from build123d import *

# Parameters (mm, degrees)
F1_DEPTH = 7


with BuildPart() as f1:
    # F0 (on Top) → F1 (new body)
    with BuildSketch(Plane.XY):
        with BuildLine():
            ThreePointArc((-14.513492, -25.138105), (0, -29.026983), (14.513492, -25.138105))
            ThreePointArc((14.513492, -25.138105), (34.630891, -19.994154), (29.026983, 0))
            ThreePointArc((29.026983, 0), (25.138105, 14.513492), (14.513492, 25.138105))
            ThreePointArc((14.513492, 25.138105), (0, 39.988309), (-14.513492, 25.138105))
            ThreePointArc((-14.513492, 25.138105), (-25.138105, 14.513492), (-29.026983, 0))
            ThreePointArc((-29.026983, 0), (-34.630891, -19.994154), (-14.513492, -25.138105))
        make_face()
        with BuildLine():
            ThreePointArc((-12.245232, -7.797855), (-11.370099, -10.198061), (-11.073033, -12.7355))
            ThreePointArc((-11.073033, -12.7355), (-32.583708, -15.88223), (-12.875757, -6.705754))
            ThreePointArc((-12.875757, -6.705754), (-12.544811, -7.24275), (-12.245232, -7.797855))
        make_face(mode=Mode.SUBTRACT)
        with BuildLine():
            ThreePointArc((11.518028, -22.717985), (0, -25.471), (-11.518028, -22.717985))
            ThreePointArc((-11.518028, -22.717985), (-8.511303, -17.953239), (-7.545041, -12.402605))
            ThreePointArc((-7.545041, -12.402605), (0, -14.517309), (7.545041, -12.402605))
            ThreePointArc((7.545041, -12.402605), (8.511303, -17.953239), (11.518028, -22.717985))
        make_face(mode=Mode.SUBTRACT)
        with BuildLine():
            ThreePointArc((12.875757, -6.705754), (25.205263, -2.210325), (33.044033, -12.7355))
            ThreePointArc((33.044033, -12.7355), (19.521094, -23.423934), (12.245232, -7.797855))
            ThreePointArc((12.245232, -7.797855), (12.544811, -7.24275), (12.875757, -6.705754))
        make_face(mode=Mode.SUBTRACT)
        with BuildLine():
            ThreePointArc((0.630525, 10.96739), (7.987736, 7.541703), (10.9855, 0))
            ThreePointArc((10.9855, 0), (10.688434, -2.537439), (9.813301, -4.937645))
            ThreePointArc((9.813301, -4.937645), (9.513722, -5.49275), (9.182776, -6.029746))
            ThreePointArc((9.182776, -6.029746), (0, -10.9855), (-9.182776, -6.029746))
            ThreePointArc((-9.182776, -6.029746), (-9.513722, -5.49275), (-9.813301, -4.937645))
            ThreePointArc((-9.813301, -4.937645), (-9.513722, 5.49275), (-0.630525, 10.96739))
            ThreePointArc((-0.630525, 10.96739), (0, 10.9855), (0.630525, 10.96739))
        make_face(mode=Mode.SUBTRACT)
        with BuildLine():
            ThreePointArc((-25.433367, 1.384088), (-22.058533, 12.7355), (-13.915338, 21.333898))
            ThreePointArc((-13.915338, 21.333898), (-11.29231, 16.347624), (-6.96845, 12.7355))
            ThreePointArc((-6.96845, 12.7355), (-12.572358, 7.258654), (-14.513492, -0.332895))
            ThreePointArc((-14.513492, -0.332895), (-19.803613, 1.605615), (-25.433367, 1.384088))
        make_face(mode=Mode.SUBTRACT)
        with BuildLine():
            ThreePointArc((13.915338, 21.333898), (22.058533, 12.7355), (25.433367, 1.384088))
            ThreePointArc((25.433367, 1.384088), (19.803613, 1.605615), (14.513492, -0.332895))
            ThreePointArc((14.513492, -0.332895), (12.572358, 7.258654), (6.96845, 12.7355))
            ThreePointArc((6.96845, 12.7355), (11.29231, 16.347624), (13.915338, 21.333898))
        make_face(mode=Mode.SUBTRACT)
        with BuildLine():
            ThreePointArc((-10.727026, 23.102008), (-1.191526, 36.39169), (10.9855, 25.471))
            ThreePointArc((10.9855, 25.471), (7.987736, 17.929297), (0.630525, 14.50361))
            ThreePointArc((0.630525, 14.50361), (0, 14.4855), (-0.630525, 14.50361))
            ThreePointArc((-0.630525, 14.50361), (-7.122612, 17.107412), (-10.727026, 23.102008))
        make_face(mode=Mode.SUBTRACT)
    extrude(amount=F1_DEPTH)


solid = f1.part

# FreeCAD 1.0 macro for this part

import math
import FreeCAD as App
import Part
import Sketcher
Q = App.Units.Quantity

doc = App.newDocument("Part")
body = doc.addObject("PartDesign::Body", "Body")

sketch1 = body.newObject("Sketcher::SketchObject", "Sketch")
sketch1.AttachmentSupport = (doc.getObject("XY_Plane"), [""])
sketch1.MapMode = "FlatFace"
sketch1.addGeometry(Part.ArcOfCircle(Part.Circle(App.Vector(0, 0.000004, 0), App.Vector(0, 0, 1), 29.026987), math.radians(-119.999997), math.radians(-60.000003)), False)
sketch1.addGeometry(Part.ArcOfCircle(Part.Circle(App.Vector(22.058533, -12.7355, 0), App.Vector(0, 0, 1), 14.517309), math.radians(-121.313956), math.radians(61.313959)), False)
sketch1.addGeometry(Part.ArcOfCircle(Part.Circle(App.Vector(0.000001, 0.000001, 0), App.Vector(0, 0, 1), 29.026982), math.radians(-0.000003), math.radians(60.000001)), False)
sketch1.addGeometry(Part.ArcOfCircle(Part.Circle(App.Vector(0, 25.471, 0), App.Vector(0, 0, 1), 14.517309), math.radians(-1.313958), math.radians(181.313958)), False)
sketch1.addGeometry(Part.ArcOfCircle(Part.Circle(App.Vector(-0.000001, 0.000001, 0), App.Vector(0, 0, 1), 29.026982), math.radians(119.999999), math.radians(180.000003)), False)
sketch1.addGeometry(Part.ArcOfCircle(Part.Circle(App.Vector(-22.058533, -12.7355, 0), App.Vector(0, 0, 1), 14.517309), math.radians(118.686041), math.radians(301.313956)), False)
sketch1.addGeometry(Part.ArcOfCircle(Part.Circle(App.Vector(-22.058638, -12.735562, 0), App.Vector(0, 0, 1), 10.985622), math.radians(26.709682), math.radians(33.290334)), False)
sketch1.addGeometry(Part.ArcOfCircle(Part.Circle(App.Vector(-22.058524, -12.735497, 0), App.Vector(0, 0, 1), 10.985491), math.radians(-0.000014), math.radians(26.709649)), False)
sketch1.addGeometry(Part.ArcOfCircle(Part.Circle(App.Vector(-22.058533, -12.7355, 0), App.Vector(0, 0, 1), 10.9855), math.radians(33.290363), math.radians(360)), False)
sketch1.addGeometry(Part.ArcOfCircle(Part.Circle(App.Vector(22.058541, -12.735496, 0), App.Vector(0, 0, 1), 14.517317), math.radians(178.686057), math.radians(223.442501)), False)
sketch1.addGeometry(Part.ArcOfCircle(Part.Circle(App.Vector(0, -0.000005, 0), App.Vector(0, 0, 1), 25.470995), math.radians(-116.885033), math.radians(-63.114967)), False)
sketch1.addGeometry(Part.ArcOfCircle(Part.Circle(App.Vector(-22.058541, -12.735496, 0), App.Vector(0, 0, 1), 14.517317), math.radians(-43.442501), math.radians(1.313943)), False)
sketch1.addGeometry(Part.ArcOfCircle(Part.Circle(App.Vector(0, -0.000001, 0), App.Vector(0, 0, 1), 14.517308), math.radians(-121.313961), math.radians(-58.686039)), False)
sketch1.addGeometry(Part.ArcOfCircle(Part.Circle(App.Vector(22.058638, -12.735562, 0), App.Vector(0, 0, 1), 10.985622), math.radians(146.709666), math.radians(153.290318)), False)
sketch1.addGeometry(Part.ArcOfCircle(Part.Circle(App.Vector(22.058533, -12.7355, 0), App.Vector(0, 0, 1), 10.9855), math.radians(-0.000002), math.radians(146.709638)), False)
sketch1.addGeometry(Part.ArcOfCircle(Part.Circle(App.Vector(22.058533, -12.7355, 0), App.Vector(0, 0, 1), 10.9855), math.radians(153.290359), math.radians(360.000001)), False)
sketch1.addGeometry(Part.ArcOfCircle(Part.Circle(App.Vector(0, 0.00014, 0), App.Vector(0, 0, 1), 10.98536), math.radians(86.709595), math.radians(93.290405)), False)
sketch1.addGeometry(Part.ArcOfCircle(Part.Circle(App.Vector(0, 0, 0), App.Vector(0, 0, 1), 10.9855), math.radians(-0.000001), math.radians(86.709639)), False)
sketch1.addGeometry(Part.ArcOfCircle(Part.Circle(App.Vector(0.000009, -0.000003, 0), App.Vector(0, 0, 1), 10.985491), math.radians(-26.709649), math.radians(0.000014)), False)
sketch1.addGeometry(Part.ArcOfCircle(Part.Circle(App.Vector(-0.000105, 0.000062, 0), App.Vector(0, 0, 1), 10.985622), math.radians(-33.290334), math.radians(-26.709682)), False)
sketch1.addGeometry(Part.ArcOfCircle(Part.Circle(App.Vector(0, 0, 0), App.Vector(0, 0, 1), 10.9855), math.radians(-146.709635), math.radians(-33.290365)), False)
sketch1.addGeometry(Part.ArcOfCircle(Part.Circle(App.Vector(0.000105, 0.000062, 0), App.Vector(0, 0, 1), 10.985622), math.radians(-153.290318), math.radians(-146.709666)), False)
sketch1.addGeometry(Part.ArcOfCircle(Part.Circle(App.Vector(0, 0, 0), App.Vector(0, 0, 1), 10.9855), math.radians(93.290363), math.radians(206.709638)), False)
sketch1.addGeometry(Part.ArcOfCircle(Part.Circle(App.Vector(-22.058535, -12.735508, 0), App.Vector(0, 0, 1), 14.517317), math.radians(58.686052), math.radians(103.4425)), False)
sketch1.addGeometry(Part.ArcOfCircle(Part.Circle(App.Vector(0.000001, -0.000001, 0), App.Vector(0, 0, 1), 25.471001), math.radians(123.114972), math.radians(176.885025)), False)
sketch1.addGeometry(Part.ArcOfCircle(Part.Circle(App.Vector(-0.000001, 25.470998, 0), App.Vector(0, 0, 1), 14.517307), math.radians(-163.442519), math.radians(-118.686038)), False)
sketch1.addGeometry(Part.ArcOfCircle(Part.Circle(App.Vector(0.000004, -0.000003, 0), App.Vector(0, 0, 1), 14.517313), math.radians(118.686047), math.radians(181.313948)), False)
sketch1.addGeometry(Part.ArcOfCircle(Part.Circle(App.Vector(0.000001, 25.470998, 0), App.Vector(0, 0, 1), 14.517307), math.radians(-61.313962), math.radians(-16.557481)), False)
sketch1.addGeometry(Part.ArcOfCircle(Part.Circle(App.Vector(-0.000001, -0.000001, 0), App.Vector(0, 0, 1), 25.471001), math.radians(3.114975), math.radians(56.885028)), False)
sketch1.addGeometry(Part.ArcOfCircle(Part.Circle(App.Vector(22.058535, -12.735508, 0), App.Vector(0, 0, 1), 14.517317), math.radians(76.5575), math.radians(121.313948)), False)
sketch1.addGeometry(Part.ArcOfCircle(Part.Circle(App.Vector(-0.000004, -0.000003, 0), App.Vector(0, 0, 1), 14.517313), math.radians(-1.313948), math.radians(61.313953)), False)
sketch1.addGeometry(Part.ArcOfCircle(Part.Circle(App.Vector(0, 25.471, 0), App.Vector(0, 0, 1), 10.9855), math.radians(-167.5465), math.radians(-93.290364)), False)
sketch1.addGeometry(Part.ArcOfCircle(Part.Circle(App.Vector(0, 25.471, 0), App.Vector(0, 0, 1), 10.9855), math.radians(0.000001), math.radians(192.453497)), False)
sketch1.addGeometry(Part.ArcOfCircle(Part.Circle(App.Vector(0, 25.471, 0), App.Vector(0, 0, 1), 10.9855), math.radians(-86.709639), math.radians(0.000001)), False)
sketch1.addGeometry(Part.ArcOfCircle(Part.Circle(App.Vector(0, 25.47086, 0), App.Vector(0, 0, 1), 10.98536), math.radians(-93.290405), math.radians(-86.709595)), False)
sketch1.addConstraint(Sketcher.Constraint("Coincident", 0, 2, 1, 1))
sketch1.addConstraint(Sketcher.Constraint("Coincident", 1, 2, 2, 1))
sketch1.addConstraint(Sketcher.Constraint("Coincident", 2, 2, 3, 1))
sketch1.addConstraint(Sketcher.Constraint("Coincident", 3, 2, 4, 1))
sketch1.addConstraint(Sketcher.Constraint("Coincident", 4, 2, 5, 1))
sketch1.addConstraint(Sketcher.Constraint("Coincident", 5, 2, 0, 1))
sketch1.addConstraint(Sketcher.Constraint("Coincident", 6, 1, 7, 2))
sketch1.addConstraint(Sketcher.Constraint("Coincident", 7, 1, 8, 2))
sketch1.addConstraint(Sketcher.Constraint("Coincident", 8, 1, 6, 2))
sketch1.addConstraint(Sketcher.Constraint("Coincident", 9, 2, 10, 2))
sketch1.addConstraint(Sketcher.Constraint("Coincident", 10, 1, 11, 1))
sketch1.addConstraint(Sketcher.Constraint("Coincident", 11, 2, 12, 1))
sketch1.addConstraint(Sketcher.Constraint("Coincident", 12, 2, 9, 1))
sketch1.addConstraint(Sketcher.Constraint("Coincident", 13, 1, 14, 2))
sketch1.addConstraint(Sketcher.Constraint("Coincident", 14, 1, 15, 2))
sketch1.addConstraint(Sketcher.Constraint("Coincident", 15, 1, 13, 2))
sketch1.addConstraint(Sketcher.Constraint("Coincident", 16, 1, 17, 2))
sketch1.addConstraint(Sketcher.Constraint("Coincident", 17, 1, 18, 2))
sketch1.addConstraint(Sketcher.Constraint("Coincident", 18, 1, 19, 2))
sketch1.addConstraint(Sketcher.Constraint("Coincident", 19, 1, 20, 2))
sketch1.addConstraint(Sketcher.Constraint("Coincident", 20, 1, 21, 2))
sketch1.addConstraint(Sketcher.Constraint("Coincident", 21, 1, 22, 2))
sketch1.addConstraint(Sketcher.Constraint("Coincident", 22, 1, 16, 2))
sketch1.addConstraint(Sketcher.Constraint("Coincident", 23, 2, 24, 2))
sketch1.addConstraint(Sketcher.Constraint("Coincident", 24, 1, 25, 1))
sketch1.addConstraint(Sketcher.Constraint("Coincident", 25, 2, 26, 1))
sketch1.addConstraint(Sketcher.Constraint("Coincident", 26, 2, 23, 1))
sketch1.addConstraint(Sketcher.Constraint("Coincident", 27, 2, 28, 2))
sketch1.addConstraint(Sketcher.Constraint("Coincident", 28, 1, 29, 1))
sketch1.addConstraint(Sketcher.Constraint("Coincident", 29, 2, 30, 1))
sketch1.addConstraint(Sketcher.Constraint("Coincident", 30, 2, 27, 1))
sketch1.addConstraint(Sketcher.Constraint("Coincident", 31, 1, 32, 2))
sketch1.addConstraint(Sketcher.Constraint("Coincident", 32, 1, 33, 2))
sketch1.addConstraint(Sketcher.Constraint("Coincident", 33, 1, 34, 2))
sketch1.addConstraint(Sketcher.Constraint("Coincident", 34, 1, 31, 2))
sketch1.addConstraint(Sketcher.Constraint("Coincident", 0, 3, -1, 1))
sketch1.addConstraint(Sketcher.Constraint("Coincident", 2, 3, -1, 1))
sketch1.addConstraint(Sketcher.Constraint("Coincident", 4, 3, -1, 1))
sketch1.addConstraint(Sketcher.Constraint("Coincident", 10, 3, -1, 1))
sketch1.addConstraint(Sketcher.Constraint("Coincident", 12, 3, -1, 1))
sketch1.addConstraint(Sketcher.Constraint("Coincident", 17, 3, -1, 1))
sketch1.addConstraint(Sketcher.Constraint("Coincident", 18, 3, -1, 1))
sketch1.addConstraint(Sketcher.Constraint("Coincident", 20, 3, -1, 1))
sketch1.addConstraint(Sketcher.Constraint("Coincident", 22, 3, -1, 1))
sketch1.addConstraint(Sketcher.Constraint("Coincident", 24, 3, -1, 1))
sketch1.addConstraint(Sketcher.Constraint("Coincident", 26, 3, -1, 1))
sketch1.addConstraint(Sketcher.Constraint("Coincident", 28, 3, -1, 1))
sketch1.addConstraint(Sketcher.Constraint("Coincident", 30, 3, -1, 1))
sketch1.addConstraint(Sketcher.Constraint("Coincident", 7, 3, 5, 3))
sketch1.addConstraint(Sketcher.Constraint("Coincident", 8, 3, 5, 3))
sketch1.addConstraint(Sketcher.Constraint("Coincident", 9, 3, 1, 3))
sketch1.addConstraint(Sketcher.Constraint("Coincident", 11, 3, 5, 3))
sketch1.addConstraint(Sketcher.Constraint("Coincident", 14, 3, 1, 3))
sketch1.addConstraint(Sketcher.Constraint("Coincident", 15, 3, 1, 3))
sketch1.addConstraint(Sketcher.Constraint("Coincident", 23, 3, 5, 3))
sketch1.addConstraint(Sketcher.Constraint("Coincident", 25, 3, 3, 3))
sketch1.addConstraint(Sketcher.Constraint("Coincident", 27, 3, 3, 3))
sketch1.addConstraint(Sketcher.Constraint("Coincident", 29, 3, 1, 3))
sketch1.addConstraint(Sketcher.Constraint("Coincident", 31, 3, 3, 3))
sketch1.addConstraint(Sketcher.Constraint("Coincident", 32, 3, 3, 3))
sketch1.addConstraint(Sketcher.Constraint("Coincident", 33, 3, 3, 3))
sketch1.addConstraint(Sketcher.Constraint("PointOnObject", 3, 3, -2))
sketch1.addConstraint(Sketcher.Constraint("PointOnObject", 16, 3, -2))
sketch1.addConstraint(Sketcher.Constraint("PointOnObject", 1, 2, -1))
sketch1.addConstraint(Sketcher.Constraint("PointOnObject", 4, 2, -1))
sketch1.addConstraint(Sketcher.Constraint("PointOnObject", 17, 1, -1))
sketch1.addConstraint(Sketcher.Constraint("Radius", 8, Q("0.4325 in")))
sketch1.addConstraint(Sketcher.Constraint("Radius", 14, Q("0.4325 in")))
sketch1.addConstraint(Sketcher.Constraint("Radius", 17, Q("0.4325 in")))
sketch1.addConstraint(Sketcher.Constraint("Radius", 20, Q("0.4325 in")))
sketch1.addConstraint(Sketcher.Constraint("Radius", 31, Q("0.4325 in")))
sketch1.addConstraint(Sketcher.Constraint("Radius", 24, Q("25.471001 mm")))
sketch1.addConstraint(Sketcher.Constraint("Radius", 28, Q("25.471001 mm")))
sketch1.addConstraint(Sketcher.Constraint("Radius", 1, Q("14.517309 mm")))
sketch1.addConstraint(Sketcher.Constraint("Radius", 2, Q("29.026982 mm")))
sketch1.addConstraint(Sketcher.Constraint("Radius", 3, Q("14.517309 mm")))
sketch1.addConstraint(Sketcher.Constraint("Radius", 4, Q("29.026982 mm")))
sketch1.addConstraint(Sketcher.Constraint("Radius", 5, Q("14.517309 mm")))
sketch1.addConstraint(Sketcher.Constraint("Radius", 6, Q("10.985622 mm")))
sketch1.addConstraint(Sketcher.Constraint("Radius", 13, Q("10.985622 mm")))
sketch1.addConstraint(Sketcher.Constraint("Radius", 16, Q("10.98536 mm")))
sketch1.addConstraint(Sketcher.Constraint("Radius", 19, Q("10.985622 mm")))
sketch1.addConstraint(Sketcher.Constraint("Radius", 21, Q("10.985622 mm")))
sketch1.addConstraint(Sketcher.Constraint("Radius", 34, Q("10.98536 mm")))
sketch1.addConstraint(Sketcher.Constraint("DistanceY", 6, 3, -1, 1, Q("0.5014001 in")))
sketch1.addConstraint(Sketcher.Constraint("DistanceY", 13, 3, -1, 1, Q("0.5014001 in")))
sketch1.addConstraint(Sketcher.Constraint("Radius", 0, Q("29.026987 mm")))
sketch1.addConstraint(Sketcher.Constraint("Radius", 9, Q("14.517317 mm")))
sketch1.addConstraint(Sketcher.Constraint("Radius", 10, Q("25.470995 mm")))
sketch1.addConstraint(Sketcher.Constraint("Radius", 11, Q("14.517317 mm")))
sketch1.addConstraint(Sketcher.Constraint("Radius", 12, Q("14.517308 mm")))
sketch1.addConstraint(Sketcher.Constraint("Radius", 23, Q("14.517317 mm")))
sketch1.addConstraint(Sketcher.Constraint("Radius", 25, Q("14.517307 mm")))
sketch1.addConstraint(Sketcher.Constraint("Radius", 26, Q("14.517313 mm")))
sketch1.addConstraint(Sketcher.Constraint("Radius", 27, Q("14.517307 mm")))
sketch1.addConstraint(Sketcher.Constraint("Radius", 29, Q("14.517317 mm")))
sketch1.addConstraint(Sketcher.Constraint("Radius", 30, Q("14.517313 mm")))
sketch1.addConstraint(Sketcher.Constraint("DistanceY", -1, 1, 3, 3, Q("25.471 mm")))
sketch1.addConstraint(Sketcher.Constraint("DistanceY", 7, 1, -1, 1, Q("12.7355 mm")))
sketch1.addConstraint(Sketcher.Constraint("DistanceY", 14, 1, -1, 1, Q("12.7355 mm")))
sketch1.addConstraint(Sketcher.Constraint("DistanceX", -1, 1, 18, 1, Q("9.813301 mm")))
sketch1.addConstraint(Sketcher.Constraint("DistanceX", 21, 1, -1, 1, Q("9.813301 mm")))
sketch1.addConstraint(Sketcher.Constraint("DistanceY", -1, 1, 32, 1, Q("25.471 mm")))
sketch1.addConstraint(Sketcher.Constraint("DistanceX", 6, 1, -1, 1, Q("12.245232 mm")))
sketch1.addConstraint(Sketcher.Constraint("DistanceY", -1, 1, 16, 1, Q("10.96739 mm")))
sketch1.addConstraint(Sketcher.Constraint("DistanceY", -1, 1, 22, 1, Q("10.96739 mm")))
sketch1.addConstraint(Sketcher.Constraint("DistanceY", -1, 1, 33, 1, Q("14.50361 mm")))
sketch1.addConstraint(Sketcher.Constraint("DistanceY", -1, 1, 34, 1, Q("14.50361 mm")))
sketch1.addConstraint(Sketcher.Constraint("DistanceX", 8, 1, -1, 1, Q("12.875757 mm")))
sketch1.addConstraint(Sketcher.Constraint("DistanceX", -1, 1, 13, 1, Q("12.875757 mm")))
sketch1.addConstraint(Sketcher.Constraint("DistanceX", -1, 1, 15, 1, Q("12.245232 mm")))
sketch1.addConstraint(Sketcher.Constraint("DistanceX", -1, 1, 19, 1, Q("9.182776 mm")))
sketch1.addConstraint(Sketcher.Constraint("DistanceX", 20, 1, -1, 1, Q("9.182776 mm")))
sketch1.addConstraint(Sketcher.Constraint("DistanceX", 31, 1, -1, 1, Q("10.727026 mm")))
pad1 = body.newObject("PartDesign::Pad", "Pad")
pad1.Profile = sketch1
pad1.Length = 7

doc.recompute()
